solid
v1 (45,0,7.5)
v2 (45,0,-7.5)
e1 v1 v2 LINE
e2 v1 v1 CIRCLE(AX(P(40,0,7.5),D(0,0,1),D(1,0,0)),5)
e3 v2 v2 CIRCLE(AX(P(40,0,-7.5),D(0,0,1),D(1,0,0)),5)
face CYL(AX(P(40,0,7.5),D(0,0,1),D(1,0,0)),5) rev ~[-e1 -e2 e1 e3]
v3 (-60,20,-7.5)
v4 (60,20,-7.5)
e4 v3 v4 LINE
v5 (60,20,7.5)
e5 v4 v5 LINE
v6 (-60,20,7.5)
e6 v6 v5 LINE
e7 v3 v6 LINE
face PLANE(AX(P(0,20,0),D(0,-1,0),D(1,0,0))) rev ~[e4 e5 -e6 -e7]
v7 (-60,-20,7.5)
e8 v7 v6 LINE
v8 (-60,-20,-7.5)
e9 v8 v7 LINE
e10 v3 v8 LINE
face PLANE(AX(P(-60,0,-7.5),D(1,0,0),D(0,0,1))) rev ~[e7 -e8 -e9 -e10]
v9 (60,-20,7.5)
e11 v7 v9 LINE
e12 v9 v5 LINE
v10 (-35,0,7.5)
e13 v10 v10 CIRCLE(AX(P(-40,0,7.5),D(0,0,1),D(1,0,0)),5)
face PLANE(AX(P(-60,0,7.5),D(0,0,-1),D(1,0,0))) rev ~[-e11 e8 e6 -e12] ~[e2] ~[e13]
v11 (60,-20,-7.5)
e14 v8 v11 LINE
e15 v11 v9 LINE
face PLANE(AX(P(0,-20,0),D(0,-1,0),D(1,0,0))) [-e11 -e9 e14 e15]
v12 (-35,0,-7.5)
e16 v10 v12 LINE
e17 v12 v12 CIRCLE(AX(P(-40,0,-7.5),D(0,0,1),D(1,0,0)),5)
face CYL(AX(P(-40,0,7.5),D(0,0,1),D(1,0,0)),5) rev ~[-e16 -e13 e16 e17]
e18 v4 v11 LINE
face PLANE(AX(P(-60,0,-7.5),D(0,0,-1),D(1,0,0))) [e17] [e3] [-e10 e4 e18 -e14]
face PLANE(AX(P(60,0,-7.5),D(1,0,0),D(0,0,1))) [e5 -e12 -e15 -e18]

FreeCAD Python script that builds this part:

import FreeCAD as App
import Part
import Sketcher

doc = App.newDocument("Part")
params = doc.addObject("Spreadsheet::Sheet", "Params")
for row, (alias, value) in enumerate([
    ("sketch1_width", "120 mm"),
    ("sketch1_height", "15 mm"),
    ("pad1_length", "20 mm"),
    ("pad1_length2", "20 mm"),
    ("sketch2_diameter", "10 mm"),
], start=1):
    params.set(f"A{row}", alias)
    params.set(f"B{row}", "=" + value)
    params.setAlias(f"B{row}", alias)

body = doc.addObject("PartDesign::Body", "Body")

# Sketch on XZ plane
sketch1 = body.newObject("Sketcher::SketchObject", "Sketch")
sketch1.AttachmentSupport = (doc.getObject("XZ_Plane"), [""])
sketch1.MapMode = "FlatFace"
sketch1.addGeometry(Part.LineSegment(App.Vector(-60, 7.5, 0), App.Vector(-60, -7.5, 0)), False)
sketch1.addGeometry(Part.LineSegment(App.Vector(-60, -7.5, 0), App.Vector(60, -7.5, 0)), False)
sketch1.addGeometry(Part.LineSegment(App.Vector(60, -7.5, 0), App.Vector(60, 7.5, 0)), False)
sketch1.addGeometry(Part.LineSegment(App.Vector(60, 7.5, 0), App.Vector(-60, 7.5, 0)), False)
sketch1.addConstraint(Sketcher.Constraint("Coincident", 0, 2, 1, 1))
sketch1.addConstraint(Sketcher.Constraint("Coincident", 1, 2, 2, 1))
sketch1.addConstraint(Sketcher.Constraint("Coincident", 2, 2, 3, 1))
sketch1.addConstraint(Sketcher.Constraint("Coincident", 3, 2, 0, 1))
sketch1.addConstraint(Sketcher.Constraint("Vertical", 0))
sketch1.addConstraint(Sketcher.Constraint("Horizontal", 1))
sketch1.addConstraint(Sketcher.Constraint("Vertical", 2))
sketch1.addConstraint(Sketcher.Constraint("Horizontal", 3))
sketch1.addConstraint(Sketcher.Constraint("Symmetric", 0, 2, 2, 2, -1, 1))
sketch1.addConstraint(Sketcher.Constraint("DistanceX", 1, 1, 1, 2, 120.0))
sketch1.addConstraint(Sketcher.Constraint("DistanceY", 0, 2, 0, 1, 15.0))
sketch1.setExpression("Constraints[9]", "Params.sketch1_width")
sketch1.setExpression("Constraints[10]", "Params.sketch1_height")
pad1 = body.newObject("PartDesign::Pad", "Pad")
pad1.Profile = sketch1
pad1.Type = "TwoLengths"
pad1.setExpression("Length", "Params.pad1_length")
pad1.setExpression("Length2", "Params.pad1_length2")

# Sketch on XY plane
sketch2 = body.newObject("Sketcher::SketchObject", "Sketch001")
sketch2.AttachmentSupport = (doc.getObject("XY_Plane"), [""])
sketch2.MapMode = "FlatFace"
sketch2.AttachmentOffset = App.Placement(App.Vector(0, 0, 7.5), App.Rotation())
sketch2.addGeometry(Part.Circle(App.Vector(-40, 0, 0), App.Vector(0, 0, 1), 5), False)
sketch2.addGeometry(Part.Circle(App.Vector(40, 0, 0), App.Vector(0, 0, 1), 5), False)
sketch2.addConstraint(Sketcher.Constraint("Equal", 0, 1))
sketch2.addConstraint(Sketcher.Constraint("Symmetric", 0, 3, 1, 3, -1, 1))
sketch2.addConstraint(Sketcher.Constraint("PointOnObject", 0, 3, -1))
sketch2.addConstraint(Sketcher.Constraint("Diameter", 0, 10.0))
sketch2.addConstraint(Sketcher.Constraint("DistanceX", 0, 3, -1, 1, 40.0))
sketch2.setExpression("Constraints[3]", "Params.sketch2_diameter")
pocket1 = body.newObject("PartDesign::Pocket", "Pocket")
pocket1.Profile = sketch2
pocket1.Type = "ThroughAll"

doc.recompute()
